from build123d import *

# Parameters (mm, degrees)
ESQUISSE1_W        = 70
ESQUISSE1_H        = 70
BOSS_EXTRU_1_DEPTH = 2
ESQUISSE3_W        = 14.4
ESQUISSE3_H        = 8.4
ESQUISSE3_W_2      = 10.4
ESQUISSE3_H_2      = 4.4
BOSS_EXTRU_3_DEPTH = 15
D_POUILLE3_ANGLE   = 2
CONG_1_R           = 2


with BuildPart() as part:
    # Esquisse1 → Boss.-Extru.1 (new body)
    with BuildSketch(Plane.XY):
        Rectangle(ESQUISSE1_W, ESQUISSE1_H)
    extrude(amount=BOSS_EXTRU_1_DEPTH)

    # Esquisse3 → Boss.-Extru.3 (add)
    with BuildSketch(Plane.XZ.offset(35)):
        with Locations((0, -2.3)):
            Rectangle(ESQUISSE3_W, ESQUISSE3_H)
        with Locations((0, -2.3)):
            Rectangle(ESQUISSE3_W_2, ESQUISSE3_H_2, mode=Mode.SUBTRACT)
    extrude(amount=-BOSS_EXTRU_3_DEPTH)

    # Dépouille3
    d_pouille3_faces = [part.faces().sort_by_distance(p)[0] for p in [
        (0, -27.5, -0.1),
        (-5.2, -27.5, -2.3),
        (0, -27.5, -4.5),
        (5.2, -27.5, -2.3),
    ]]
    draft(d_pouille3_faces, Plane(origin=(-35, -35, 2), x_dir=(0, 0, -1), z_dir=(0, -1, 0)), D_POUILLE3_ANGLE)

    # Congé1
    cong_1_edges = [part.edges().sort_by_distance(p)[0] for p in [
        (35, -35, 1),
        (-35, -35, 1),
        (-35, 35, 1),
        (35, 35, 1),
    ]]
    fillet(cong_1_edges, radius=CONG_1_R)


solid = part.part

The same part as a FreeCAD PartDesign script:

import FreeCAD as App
import Part
import Sketcher
from FreeCAD import Vector


def edges_at(feature, points):
    """Names of the edges that pass closest to the given points."""
    edges = feature.Shape.Edges
    near = lambda p: min(range(len(edges)), key=lambda i: edges[i].distToShape(Part.Vertex(*p))[0])
    return sorted({f"Edge{near(p) + 1}" for p in points})


def faces_at(feature, points):
    """Names of the faces that lie closest to the given points."""
    faces = feature.Shape.Faces
    near = lambda p: min(range(len(faces)), key=lambda i: faces[i].distToShape(Part.Vertex(*p))[0])
    return sorted({f"Face{near(p) + 1}" for p in points})

doc = App.newDocument("Part")
params = doc.addObject("Spreadsheet::Sheet", "Params")
for row, (alias, value) in enumerate([
    ("sketch1_width", "70 mm"),
    ("pad1_length", "2 mm"),
    ("sketch2_width", "14.4 mm"),
    ("sketch2_width2", "10.4 mm"),
    ("sketch2_height", "8.4 mm"),
    ("sketch2_height2", "4.4 mm"),
    ("pad2_length", "15 mm"),
    ("draft_angle", "2 deg"),
    ("fillet_radius", "2 mm"),
], start=1):
    params.set(f"A{row}", alias)
    params.set(f"B{row}", "=" + value)
    params.setAlias(f"B{row}", alias)

body = doc.addObject("PartDesign::Body", "Body")

# Sketch on XY plane
sketch1 = doc.addObject("Sketcher::SketchObject", "Sketch")
body.addObject(sketch1)
sketch1.AttachmentSupport = (doc.XY_Plane, [""])
sketch1.MapMode = "FlatFace"
sketch1.addGeometry([
    Part.LineSegment(Vector(-35, 35, 0), Vector(-35, -35, 0)),
    Part.LineSegment(Vector(-35, -35, 0), Vector(35, -35, 0)),
    Part.LineSegment(Vector(35, -35, 0), Vector(35, 35, 0)),
    Part.LineSegment(Vector(35, 35, 0), Vector(-35, 35, 0)),
], False)
sketch1.addConstraint([
    Sketcher.Constraint("Coincident", 0, 2, 1, 1),
    Sketcher.Constraint("Coincident", 1, 2, 2, 1),
    Sketcher.Constraint("Coincident", 2, 2, 3, 1),
    Sketcher.Constraint("Coincident", 3, 2, 0, 1),
    Sketcher.Constraint("Vertical", 0),
    Sketcher.Constraint("Horizontal", 1),
    Sketcher.Constraint("Vertical", 2),
    Sketcher.Constraint("Horizontal", 3),
    Sketcher.Constraint("Symmetric", 0, 2, 2, 2, -1, 1),
    Sketcher.Constraint("Equal", 3, 0),
    Sketcher.Constraint("DistanceX", 1, 1, 1, 2, 70.0),
])
sketch1.setExpression("Constraints[10]", "Params.sketch1_width")
pad1 = doc.addObject("PartDesign::Pad", "Pad")
body.addObject(pad1)
pad1.Profile = sketch1
pad1.setExpression("Length", "Params.pad1_length")

# Sketch on XZ plane
sketch2 = doc.addObject("Sketcher::SketchObject", "Sketch001")
body.addObject(sketch2)
sketch2.AttachmentSupport = (doc.XZ_Plane, [""])
sketch2.MapMode = "FlatFace"
sketch2.AttachmentOffset = App.Placement(Vector(0, 0, 35), App.Rotation())
sketch2.addGeometry([
    Part.LineSegment(Vector(-7.2, 1.9, 0), Vector(-7.2, -6.5, 0)),  # 0
    Part.LineSegment(Vector(-7.2, -6.5, 0), Vector(7.2, -6.5, 0)),  # 1
    Part.LineSegment(Vector(7.2, -6.5, 0), Vector(7.2, 1.9, 0)),  # 2
    Part.LineSegment(Vector(7.2, 1.9, 0), Vector(-7.2, 1.9, 0)),  # 3
    Part.LineSegment(Vector(5.2, -4.5, 0), Vector(-5.2, -4.5, 0)),  # 4
    Part.LineSegment(Vector(-5.2, -4.5, 0), Vector(-5.2, -0.1, 0)),  # 5
    Part.LineSegment(Vector(-5.2, -0.1, 0), Vector(5.2, -0.1, 0)),  # 6
    Part.LineSegment(Vector(5.2, -0.1, 0), Vector(5.2, -4.5, 0)),  # 7
], False)
sketch2.addConstraint([
    Sketcher.Constraint("Coincident", 0, 2, 1, 1),
    Sketcher.Constraint("Coincident", 1, 2, 2, 1),
    Sketcher.Constraint("Coincident", 2, 2, 3, 1),
    Sketcher.Constraint("Coincident", 3, 2, 0, 1),
    Sketcher.Constraint("Coincident", 4, 2, 5, 1),
    Sketcher.Constraint("Coincident", 5, 2, 6, 1),
    Sketcher.Constraint("Coincident", 6, 2, 7, 1),
    Sketcher.Constraint("Coincident", 7, 2, 4, 1),
    Sketcher.Constraint("Vertical", 0),
    Sketcher.Constraint("Horizontal", 1),
    Sketcher.Constraint("Vertical", 2),
    Sketcher.Constraint("Horizontal", 3),
    Sketcher.Constraint("Horizontal", 4),
    Sketcher.Constraint("Vertical", 5),
    Sketcher.Constraint("Horizontal", 6),
    Sketcher.Constraint("Vertical", 7),
    Sketcher.Constraint("DistanceX", 1, 1, 1, 2, 14.4),
    Sketcher.Constraint("DistanceX", 4, 2, 4, 1, 10.4),
    Sketcher.Constraint("DistanceY", 0, 2, 0, 1, 8.4),
    Sketcher.Constraint("DistanceY", 5, 1, 5, 2, 4.4),
    Sketcher.Constraint("DistanceX", 0, 2, 4, 2, 2.0),
    Sketcher.Constraint("DistanceY", 0, 2, 4, 2, 2.0),
    Sketcher.Constraint("DistanceX", 0, 2, -1, 1, 7.2),
    Sketcher.Constraint("DistanceY", 0, 2, -1, 1, 6.5),
])
sketch2.setExpression("Constraints[16]", "Params.sketch2_width")
sketch2.setExpression("Constraints[17]", "Params.sketch2_width2")
sketch2.setExpression("Constraints[18]", "Params.sketch2_height")
sketch2.setExpression("Constraints[19]", "Params.sketch2_height2")
pad2 = doc.addObject("PartDesign::Pad", "Pad001")
body.addObject(pad2)
pad2.Profile = sketch2
pad2.setExpression("Length", "Params.pad2_length")
pad2.Reversed = True
doc.recompute()

datumplane = doc.addObject("PartDesign::Plane", "DatumPlane")
body.addObject(datumplane)
datumplane.AttachmentSupport = (doc.XZ_Plane, [""])
datumplane.MapMode = "FlatFace"
datumplane.AttachmentOffset = App.Placement(Vector(0, 0, 35), App.Rotation())
draft = doc.addObject("PartDesign::Draft", "Draft")
body.addObject(draft)
draft.Base = (pad2, faces_at(pad2, [
    (0, -27.5, -0.1),
    (-5.2, -27.5, -2.3),
    (0, -27.5, -4.5),
    (5.2, -27.5, -2.3),
]))
draft.NeutralPlane = (datumplane, [""])
draft.setExpression("Angle", "Params.draft_angle")
draft.Reversed = False
doc.recompute()

fillet = doc.addObject("PartDesign::Fillet", "Fillet")
body.addObject(fillet)
fillet.Base = (draft, edges_at(draft, [
    (35, -35, 1),
    (-35, -35, 1),
    (-35, 35, 1),
    (35, 35, 1),
]))
fillet.setExpression("Radius", "Params.fillet_radius")

doc.recompute()
